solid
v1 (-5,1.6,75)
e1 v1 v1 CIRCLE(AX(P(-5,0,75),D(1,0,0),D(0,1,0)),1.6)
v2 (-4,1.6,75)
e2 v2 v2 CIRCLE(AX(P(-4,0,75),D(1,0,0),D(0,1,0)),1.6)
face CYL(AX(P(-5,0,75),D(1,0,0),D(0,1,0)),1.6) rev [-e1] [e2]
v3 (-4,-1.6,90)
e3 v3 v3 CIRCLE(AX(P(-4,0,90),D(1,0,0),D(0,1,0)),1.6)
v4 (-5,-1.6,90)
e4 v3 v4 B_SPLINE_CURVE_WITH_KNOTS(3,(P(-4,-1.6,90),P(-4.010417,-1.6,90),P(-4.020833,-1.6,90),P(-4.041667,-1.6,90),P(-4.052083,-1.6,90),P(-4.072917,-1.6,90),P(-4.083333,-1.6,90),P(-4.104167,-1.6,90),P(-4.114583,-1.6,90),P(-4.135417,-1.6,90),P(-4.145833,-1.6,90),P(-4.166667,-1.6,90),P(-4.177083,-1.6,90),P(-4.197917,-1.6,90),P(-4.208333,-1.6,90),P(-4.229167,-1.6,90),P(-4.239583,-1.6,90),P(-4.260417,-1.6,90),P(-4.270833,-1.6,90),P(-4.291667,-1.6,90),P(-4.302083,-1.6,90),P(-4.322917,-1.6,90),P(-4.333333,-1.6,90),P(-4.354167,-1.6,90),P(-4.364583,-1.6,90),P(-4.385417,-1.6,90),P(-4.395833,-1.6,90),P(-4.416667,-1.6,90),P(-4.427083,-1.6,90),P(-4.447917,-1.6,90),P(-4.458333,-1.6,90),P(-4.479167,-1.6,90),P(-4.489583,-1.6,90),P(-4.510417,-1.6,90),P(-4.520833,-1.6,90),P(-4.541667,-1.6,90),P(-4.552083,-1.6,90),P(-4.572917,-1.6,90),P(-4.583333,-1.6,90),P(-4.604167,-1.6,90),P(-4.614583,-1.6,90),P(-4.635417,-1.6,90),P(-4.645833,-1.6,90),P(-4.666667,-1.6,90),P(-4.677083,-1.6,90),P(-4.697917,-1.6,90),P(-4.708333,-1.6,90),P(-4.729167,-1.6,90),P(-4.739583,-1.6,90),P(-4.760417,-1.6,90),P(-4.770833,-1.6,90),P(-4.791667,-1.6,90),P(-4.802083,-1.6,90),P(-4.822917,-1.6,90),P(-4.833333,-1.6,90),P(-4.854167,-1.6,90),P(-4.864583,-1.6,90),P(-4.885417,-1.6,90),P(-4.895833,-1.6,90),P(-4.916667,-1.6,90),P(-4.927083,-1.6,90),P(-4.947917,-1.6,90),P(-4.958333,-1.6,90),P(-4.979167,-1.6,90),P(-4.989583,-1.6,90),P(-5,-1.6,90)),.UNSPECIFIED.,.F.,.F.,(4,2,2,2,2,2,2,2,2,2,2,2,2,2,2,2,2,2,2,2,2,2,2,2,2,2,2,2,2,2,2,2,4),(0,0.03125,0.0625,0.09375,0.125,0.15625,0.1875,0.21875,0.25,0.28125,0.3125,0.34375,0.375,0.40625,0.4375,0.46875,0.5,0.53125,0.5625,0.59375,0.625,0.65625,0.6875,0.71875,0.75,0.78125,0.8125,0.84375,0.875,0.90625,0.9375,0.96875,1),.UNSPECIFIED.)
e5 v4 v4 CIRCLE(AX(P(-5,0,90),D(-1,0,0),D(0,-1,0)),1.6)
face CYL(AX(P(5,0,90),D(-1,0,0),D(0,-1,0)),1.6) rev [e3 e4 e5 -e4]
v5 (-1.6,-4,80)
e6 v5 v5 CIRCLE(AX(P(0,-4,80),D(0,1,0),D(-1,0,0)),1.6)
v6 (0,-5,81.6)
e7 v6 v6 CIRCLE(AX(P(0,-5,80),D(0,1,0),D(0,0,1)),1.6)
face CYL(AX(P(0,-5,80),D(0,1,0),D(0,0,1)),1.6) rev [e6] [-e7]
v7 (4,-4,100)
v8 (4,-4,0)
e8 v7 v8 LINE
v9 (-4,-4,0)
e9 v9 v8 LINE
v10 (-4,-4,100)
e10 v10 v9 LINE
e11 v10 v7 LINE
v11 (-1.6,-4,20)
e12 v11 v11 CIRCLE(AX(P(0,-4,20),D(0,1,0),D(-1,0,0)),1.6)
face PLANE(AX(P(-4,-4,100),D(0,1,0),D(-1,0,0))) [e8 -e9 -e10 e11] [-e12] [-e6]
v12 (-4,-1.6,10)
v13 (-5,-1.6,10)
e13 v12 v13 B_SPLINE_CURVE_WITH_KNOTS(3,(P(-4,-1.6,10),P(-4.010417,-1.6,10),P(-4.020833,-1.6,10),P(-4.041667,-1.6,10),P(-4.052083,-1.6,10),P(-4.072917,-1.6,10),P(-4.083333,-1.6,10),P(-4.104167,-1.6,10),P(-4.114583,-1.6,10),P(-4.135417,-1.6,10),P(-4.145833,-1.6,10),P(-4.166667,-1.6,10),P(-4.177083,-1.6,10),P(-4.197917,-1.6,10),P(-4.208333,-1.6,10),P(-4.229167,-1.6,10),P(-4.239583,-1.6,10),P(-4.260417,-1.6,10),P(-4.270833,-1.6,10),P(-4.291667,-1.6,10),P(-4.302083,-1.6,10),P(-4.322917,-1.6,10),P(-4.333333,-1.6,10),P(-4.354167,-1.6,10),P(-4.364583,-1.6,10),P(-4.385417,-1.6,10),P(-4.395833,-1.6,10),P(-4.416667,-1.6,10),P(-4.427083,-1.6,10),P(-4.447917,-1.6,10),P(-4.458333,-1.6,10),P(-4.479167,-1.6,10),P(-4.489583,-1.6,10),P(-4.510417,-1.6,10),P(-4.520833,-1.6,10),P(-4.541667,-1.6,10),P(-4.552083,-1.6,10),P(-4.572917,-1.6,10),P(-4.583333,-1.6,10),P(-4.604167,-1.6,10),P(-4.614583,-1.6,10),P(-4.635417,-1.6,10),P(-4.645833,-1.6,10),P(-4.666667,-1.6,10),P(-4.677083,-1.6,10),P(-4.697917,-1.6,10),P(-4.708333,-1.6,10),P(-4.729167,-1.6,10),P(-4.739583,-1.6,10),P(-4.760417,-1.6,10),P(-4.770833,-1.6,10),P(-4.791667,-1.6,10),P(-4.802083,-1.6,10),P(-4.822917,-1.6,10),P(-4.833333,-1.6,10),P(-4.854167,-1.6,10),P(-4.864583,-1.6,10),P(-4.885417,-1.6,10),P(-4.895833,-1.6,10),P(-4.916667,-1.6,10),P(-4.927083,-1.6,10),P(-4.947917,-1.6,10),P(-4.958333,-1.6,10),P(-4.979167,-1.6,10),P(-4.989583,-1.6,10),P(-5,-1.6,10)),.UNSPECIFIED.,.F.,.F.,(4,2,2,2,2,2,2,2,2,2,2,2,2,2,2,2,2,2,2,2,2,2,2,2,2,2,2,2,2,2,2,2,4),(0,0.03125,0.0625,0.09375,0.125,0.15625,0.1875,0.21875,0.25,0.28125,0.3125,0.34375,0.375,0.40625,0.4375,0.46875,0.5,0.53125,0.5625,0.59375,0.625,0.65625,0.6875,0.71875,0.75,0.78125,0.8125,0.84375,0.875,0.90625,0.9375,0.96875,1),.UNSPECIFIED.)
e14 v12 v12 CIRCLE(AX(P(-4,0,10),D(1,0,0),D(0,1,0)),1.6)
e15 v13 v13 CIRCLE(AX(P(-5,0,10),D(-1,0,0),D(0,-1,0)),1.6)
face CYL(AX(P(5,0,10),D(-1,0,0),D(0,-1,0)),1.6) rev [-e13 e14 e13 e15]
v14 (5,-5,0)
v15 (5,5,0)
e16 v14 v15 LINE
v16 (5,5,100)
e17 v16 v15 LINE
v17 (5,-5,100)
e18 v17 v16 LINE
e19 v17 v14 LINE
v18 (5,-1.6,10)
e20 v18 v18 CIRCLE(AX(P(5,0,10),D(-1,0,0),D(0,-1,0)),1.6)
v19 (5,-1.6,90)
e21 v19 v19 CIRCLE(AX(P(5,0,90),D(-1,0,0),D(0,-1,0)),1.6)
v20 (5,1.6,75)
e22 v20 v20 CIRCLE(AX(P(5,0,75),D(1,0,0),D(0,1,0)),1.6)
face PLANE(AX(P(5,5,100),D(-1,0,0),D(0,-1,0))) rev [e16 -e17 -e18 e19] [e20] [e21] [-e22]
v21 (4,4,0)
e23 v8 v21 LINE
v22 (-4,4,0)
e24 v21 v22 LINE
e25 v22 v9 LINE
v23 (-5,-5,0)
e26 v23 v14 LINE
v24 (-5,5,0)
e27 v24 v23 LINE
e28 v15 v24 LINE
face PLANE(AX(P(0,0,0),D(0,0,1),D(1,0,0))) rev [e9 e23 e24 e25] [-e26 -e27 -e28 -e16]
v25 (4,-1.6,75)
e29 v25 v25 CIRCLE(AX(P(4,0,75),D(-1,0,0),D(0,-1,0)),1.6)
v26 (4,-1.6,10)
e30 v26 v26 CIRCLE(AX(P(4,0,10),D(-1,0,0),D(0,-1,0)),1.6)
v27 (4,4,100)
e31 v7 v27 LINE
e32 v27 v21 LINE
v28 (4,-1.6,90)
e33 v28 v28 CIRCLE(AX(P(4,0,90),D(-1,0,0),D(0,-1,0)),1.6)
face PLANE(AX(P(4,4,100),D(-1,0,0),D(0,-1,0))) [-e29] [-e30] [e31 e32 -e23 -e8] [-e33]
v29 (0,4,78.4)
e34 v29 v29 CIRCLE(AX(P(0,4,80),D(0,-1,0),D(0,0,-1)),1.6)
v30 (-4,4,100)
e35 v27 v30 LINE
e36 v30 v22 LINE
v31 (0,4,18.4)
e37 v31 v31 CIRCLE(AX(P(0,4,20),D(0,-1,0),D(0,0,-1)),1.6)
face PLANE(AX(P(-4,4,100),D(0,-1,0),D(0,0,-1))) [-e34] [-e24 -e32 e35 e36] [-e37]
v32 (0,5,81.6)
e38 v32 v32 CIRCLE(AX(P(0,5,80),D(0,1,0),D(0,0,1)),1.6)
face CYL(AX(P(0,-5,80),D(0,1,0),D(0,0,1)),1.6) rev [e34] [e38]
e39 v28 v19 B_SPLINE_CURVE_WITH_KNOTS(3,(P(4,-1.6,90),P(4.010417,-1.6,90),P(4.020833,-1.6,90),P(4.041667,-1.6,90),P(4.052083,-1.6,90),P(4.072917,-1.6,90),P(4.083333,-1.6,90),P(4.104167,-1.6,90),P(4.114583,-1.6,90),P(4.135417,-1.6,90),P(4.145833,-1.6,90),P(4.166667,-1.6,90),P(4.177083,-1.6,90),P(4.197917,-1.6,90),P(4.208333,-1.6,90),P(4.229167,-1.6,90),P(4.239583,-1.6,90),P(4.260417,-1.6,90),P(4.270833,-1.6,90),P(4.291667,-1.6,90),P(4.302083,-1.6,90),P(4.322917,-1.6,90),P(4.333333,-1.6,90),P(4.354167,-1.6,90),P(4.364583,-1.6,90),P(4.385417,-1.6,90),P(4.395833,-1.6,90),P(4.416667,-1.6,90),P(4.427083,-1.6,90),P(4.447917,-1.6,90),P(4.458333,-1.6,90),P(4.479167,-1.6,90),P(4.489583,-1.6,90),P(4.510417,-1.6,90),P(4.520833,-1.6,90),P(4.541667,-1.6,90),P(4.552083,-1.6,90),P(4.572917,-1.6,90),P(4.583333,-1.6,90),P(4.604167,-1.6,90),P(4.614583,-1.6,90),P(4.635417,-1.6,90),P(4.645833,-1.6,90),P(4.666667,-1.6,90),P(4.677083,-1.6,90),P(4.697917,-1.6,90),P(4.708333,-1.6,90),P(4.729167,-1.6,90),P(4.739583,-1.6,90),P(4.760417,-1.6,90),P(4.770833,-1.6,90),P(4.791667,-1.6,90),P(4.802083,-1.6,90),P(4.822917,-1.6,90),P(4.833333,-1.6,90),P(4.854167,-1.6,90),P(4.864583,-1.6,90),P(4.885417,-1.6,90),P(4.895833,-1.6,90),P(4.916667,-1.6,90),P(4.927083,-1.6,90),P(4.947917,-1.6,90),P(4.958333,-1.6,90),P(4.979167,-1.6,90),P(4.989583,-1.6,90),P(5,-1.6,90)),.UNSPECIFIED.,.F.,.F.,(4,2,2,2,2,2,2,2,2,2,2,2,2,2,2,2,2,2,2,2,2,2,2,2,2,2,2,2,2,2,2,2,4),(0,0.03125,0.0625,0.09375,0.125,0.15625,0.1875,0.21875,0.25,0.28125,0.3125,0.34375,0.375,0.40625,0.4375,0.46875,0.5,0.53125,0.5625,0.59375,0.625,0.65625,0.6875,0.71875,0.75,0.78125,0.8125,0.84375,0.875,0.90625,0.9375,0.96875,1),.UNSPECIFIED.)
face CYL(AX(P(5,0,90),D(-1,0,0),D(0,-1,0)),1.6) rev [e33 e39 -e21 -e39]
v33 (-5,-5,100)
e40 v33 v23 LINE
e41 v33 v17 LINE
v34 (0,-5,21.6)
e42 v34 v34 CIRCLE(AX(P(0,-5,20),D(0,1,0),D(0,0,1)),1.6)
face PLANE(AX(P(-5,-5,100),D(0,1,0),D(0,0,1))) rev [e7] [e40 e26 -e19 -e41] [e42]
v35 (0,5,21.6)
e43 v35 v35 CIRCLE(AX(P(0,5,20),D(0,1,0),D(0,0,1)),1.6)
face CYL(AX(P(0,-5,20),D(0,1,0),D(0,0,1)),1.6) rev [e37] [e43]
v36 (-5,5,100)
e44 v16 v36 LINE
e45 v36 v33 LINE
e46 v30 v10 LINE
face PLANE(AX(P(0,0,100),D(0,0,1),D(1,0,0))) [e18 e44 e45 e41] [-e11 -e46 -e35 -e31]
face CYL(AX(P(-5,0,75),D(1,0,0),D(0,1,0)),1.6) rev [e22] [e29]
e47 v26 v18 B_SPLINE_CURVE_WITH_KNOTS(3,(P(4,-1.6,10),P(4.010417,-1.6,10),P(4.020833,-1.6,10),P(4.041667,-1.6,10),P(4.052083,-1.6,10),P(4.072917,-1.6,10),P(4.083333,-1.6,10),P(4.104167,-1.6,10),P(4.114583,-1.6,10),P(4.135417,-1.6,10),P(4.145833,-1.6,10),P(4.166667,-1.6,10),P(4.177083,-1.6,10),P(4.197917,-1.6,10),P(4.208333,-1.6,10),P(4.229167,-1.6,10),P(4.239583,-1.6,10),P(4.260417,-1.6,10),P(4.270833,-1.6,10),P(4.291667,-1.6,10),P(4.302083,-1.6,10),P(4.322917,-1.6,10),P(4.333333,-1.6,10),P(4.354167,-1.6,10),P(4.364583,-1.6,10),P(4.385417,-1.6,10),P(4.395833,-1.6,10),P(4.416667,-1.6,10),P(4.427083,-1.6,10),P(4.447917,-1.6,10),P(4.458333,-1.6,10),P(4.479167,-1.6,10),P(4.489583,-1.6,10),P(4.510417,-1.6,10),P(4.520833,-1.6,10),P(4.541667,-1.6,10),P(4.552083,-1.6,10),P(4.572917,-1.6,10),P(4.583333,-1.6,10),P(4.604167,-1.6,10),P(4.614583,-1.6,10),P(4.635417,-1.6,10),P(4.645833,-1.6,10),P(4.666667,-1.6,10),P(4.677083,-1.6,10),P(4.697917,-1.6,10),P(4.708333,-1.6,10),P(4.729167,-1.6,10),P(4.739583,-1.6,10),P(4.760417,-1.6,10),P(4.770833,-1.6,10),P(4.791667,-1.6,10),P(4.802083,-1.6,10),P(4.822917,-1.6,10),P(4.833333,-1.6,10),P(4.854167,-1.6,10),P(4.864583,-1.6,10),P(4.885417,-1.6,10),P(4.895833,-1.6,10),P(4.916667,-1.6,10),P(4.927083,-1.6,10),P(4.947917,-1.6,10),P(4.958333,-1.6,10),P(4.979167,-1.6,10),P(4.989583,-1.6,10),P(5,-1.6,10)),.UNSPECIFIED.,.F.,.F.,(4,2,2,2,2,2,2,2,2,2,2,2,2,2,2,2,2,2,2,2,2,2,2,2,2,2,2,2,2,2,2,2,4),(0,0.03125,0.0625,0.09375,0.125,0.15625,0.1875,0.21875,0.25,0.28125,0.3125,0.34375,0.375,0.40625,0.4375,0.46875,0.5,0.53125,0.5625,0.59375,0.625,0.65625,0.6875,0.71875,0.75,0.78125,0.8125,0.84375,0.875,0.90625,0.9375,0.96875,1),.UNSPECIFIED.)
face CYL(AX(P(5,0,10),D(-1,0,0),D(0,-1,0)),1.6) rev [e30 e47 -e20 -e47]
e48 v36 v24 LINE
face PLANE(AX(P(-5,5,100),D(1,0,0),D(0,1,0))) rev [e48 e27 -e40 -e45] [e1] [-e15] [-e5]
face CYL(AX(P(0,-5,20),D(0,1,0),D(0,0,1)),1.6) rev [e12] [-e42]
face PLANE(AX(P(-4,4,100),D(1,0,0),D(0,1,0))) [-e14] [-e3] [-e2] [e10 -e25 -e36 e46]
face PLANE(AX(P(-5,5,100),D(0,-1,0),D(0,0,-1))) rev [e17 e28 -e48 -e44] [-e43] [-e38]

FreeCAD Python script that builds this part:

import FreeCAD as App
import Part
import Sketcher

V = App.Vector
Q = App.Units.Quantity

doc = App.newDocument("Part")
body = doc.addObject("PartDesign::Body", "Body")

sketch1 = body.newObject("Sketcher::SketchObject", "Sketch")
sketch1.AttachmentSupport = (doc.getObject("XY_Plane"), [""])
sketch1.MapMode = "FlatFace"
sketch1.addGeometry([
    Part.LineSegment(V(-5, 5, 0), V(-5, -5, 0)),
    Part.LineSegment(V(-5, -5, 0), V(5, -5, 0)),
    Part.LineSegment(V(5, -5, 0), V(5, 5, 0)),
    Part.LineSegment(V(5, 5, 0), V(-5, 5, 0)),
    Part.LineSegment(V(4, -4, 0), V(-4, -4, 0)),
    Part.LineSegment(V(-4, -4, 0), V(-4, 4, 0)),
    Part.LineSegment(V(-4, 4, 0), V(4, 4, 0)),
    Part.LineSegment(V(4, 4, 0), V(4, -4, 0)),
], False)
sketch1.addConstraint([
    Sketcher.Constraint("Coincident", 0, 2, 1, 1),
    Sketcher.Constraint("Coincident", 1, 2, 2, 1),
    Sketcher.Constraint("Coincident", 2, 2, 3, 1),
    Sketcher.Constraint("Coincident", 3, 2, 0, 1),
    Sketcher.Constraint("Coincident", 4, 2, 5, 1),
    Sketcher.Constraint("Coincident", 5, 2, 6, 1),
    Sketcher.Constraint("Coincident", 6, 2, 7, 1),
    Sketcher.Constraint("Coincident", 7, 2, 4, 1),
    Sketcher.Constraint("Vertical", 0),
    Sketcher.Constraint("Horizontal", 1),
    Sketcher.Constraint("Vertical", 2),
    Sketcher.Constraint("Horizontal", 3),
    Sketcher.Constraint("Horizontal", 4),
    Sketcher.Constraint("Vertical", 5),
    Sketcher.Constraint("Horizontal", 6),
    Sketcher.Constraint("Vertical", 7),
    Sketcher.Constraint("Symmetric", 0, 2, 2, 2, -1, 1),
    Sketcher.Constraint("Symmetric", 4, 2, 6, 2, -1, 1),
    Sketcher.Constraint("Equal", 3, 0),
    Sketcher.Constraint("Equal", 6, 5),
    Sketcher.Constraint("DistanceX", 1, 1, 1, 2, Q("10 mm")),
    Sketcher.Constraint("DistanceX", 4, 2, 4, 1, Q("8 mm")),
])
pad1 = body.newObject("PartDesign::Pad", "Pad")
pad1.Profile = sketch1
pad1.Length = 100

sketch2 = body.newObject("Sketcher::SketchObject", "Sketch001")
sketch2.AttachmentSupport = (doc.getObject("XZ_Plane"), [""])
sketch2.MapMode = "FlatFace"
sketch2.AttachmentOffset = App.Placement(V(0, 0, -5), App.Rotation())
sketch2.addGeometry([
    Part.Circle(V(0, 20, 0), V(0, 0, 1), 1.6),
    Part.Circle(V(0, 80, 0), V(0, 0, 1), 1.6),
], False)
sketch2.addConstraint([
    Sketcher.Constraint("Equal", 0, 1),
    Sketcher.Constraint("PointOnObject", 0, 3, -2),
    Sketcher.Constraint("PointOnObject", 1, 3, -2),
    Sketcher.Constraint("Diameter", 0, Q("3.2 mm")),
    Sketcher.Constraint("DistanceY", -1, 1, 0, 3, Q("20 mm")),
    Sketcher.Constraint("DistanceY", -1, 1, 1, 3, Q("80 mm")),
])
pocket1 = body.newObject("PartDesign::Pocket", "Pocket")
pocket1.Profile = sketch2
pocket1.Type = "ThroughAll"
pocket1.Reversed = True

sketch3 = body.newObject("Sketcher::SketchObject", "Sketch002")
sketch3.AttachmentSupport = (doc.getObject("YZ_Plane"), [""])
sketch3.MapMode = "FlatFace"
sketch3.AttachmentOffset = App.Placement(V(0, 0, -5), App.Rotation())
sketch3.addGeometry([
    Part.Circle(V(0, 10, 0), V(0, 0, 1), 1.6),
    Part.Circle(V(0, 90, 0), V(0, 0, 1), 1.6),
], False)
sketch3.addConstraint([
    Sketcher.Constraint("Equal", 0, 1),
    Sketcher.Constraint("PointOnObject", 0, 3, -2),
    Sketcher.Constraint("PointOnObject", 1, 3, -2),
    Sketcher.Constraint("Diameter", 0, Q("3.2 mm")),
    Sketcher.Constraint("DistanceY", -1, 1, 0, 3, Q("10 mm")),
    Sketcher.Constraint("DistanceY", -1, 1, 1, 3, Q("90 mm")),
])
pocket2 = body.newObject("PartDesign::Pocket", "Pocket001")
pocket2.Profile = sketch3
pocket2.Type = "ThroughAll"
pocket2.Reversed = True

sketch4 = body.newObject("Sketcher::SketchObject", "Sketch003")
sketch4.AttachmentSupport = (doc.getObject("YZ_Plane"), [""])
sketch4.MapMode = "FlatFace"
sketch4.AttachmentOffset = App.Placement(V(0, 0, 5), App.Rotation())
sketch4.addGeometry(Part.Circle(V(0, 75, 0), V(0, 0, 1), 1.6), False)
sketch4.addConstraint([
    Sketcher.Constraint("PointOnObject", 0, 3, -2),
    Sketcher.Constraint("Diameter", 0, Q("3.2 mm")),
    Sketcher.Constraint("DistanceY", -1, 1, 0, 3, Q("75 mm")),
])
pocket3 = body.newObject("PartDesign::Pocket", "Pocket002")
pocket3.Profile = sketch4
pocket3.Type = "ThroughAll"

doc.recompute()
